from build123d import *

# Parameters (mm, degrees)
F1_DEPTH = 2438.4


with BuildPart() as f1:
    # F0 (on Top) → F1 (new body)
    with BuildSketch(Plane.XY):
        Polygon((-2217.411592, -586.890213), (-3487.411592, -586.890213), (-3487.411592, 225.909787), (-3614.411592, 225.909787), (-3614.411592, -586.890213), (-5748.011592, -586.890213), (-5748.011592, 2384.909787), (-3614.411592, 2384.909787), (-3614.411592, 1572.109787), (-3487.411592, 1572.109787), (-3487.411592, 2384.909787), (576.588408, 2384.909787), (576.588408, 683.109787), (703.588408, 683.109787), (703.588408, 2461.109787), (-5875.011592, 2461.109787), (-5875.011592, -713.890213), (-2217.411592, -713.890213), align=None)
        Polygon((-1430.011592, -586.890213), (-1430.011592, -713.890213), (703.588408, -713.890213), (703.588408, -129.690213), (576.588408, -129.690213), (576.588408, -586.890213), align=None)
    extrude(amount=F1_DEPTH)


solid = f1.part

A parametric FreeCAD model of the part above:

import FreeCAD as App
import Part
import Sketcher
from FreeCAD import Vector
Q = App.Units.Quantity

doc = App.newDocument("Part")
params = doc.addObject("Spreadsheet::Sheet", "Params")
for row, (alias, value) in enumerate([
    ("sketch1_width", "50 in"),
    ("sketch1_width2", "5 in"),
    ("sketch1_width3", "84 in"),
    ("sketch1_width4", "160 in"),
    ("sketch1_width5", "259 in"),
    ("pad1_length", "96 in"),
], start=1):
    params.set(f"A{row}", alias)
    params.set(f"B{row}", "=" + value)
    params.setAlias(f"B{row}", alias)

body = doc.addObject("PartDesign::Body", "Body")
body.AllowCompound = True

# Sketch on XY plane
sketch1 = body.newObject("Sketcher::SketchObject", "Sketch")
sketch1.AttachmentSupport = (doc.getObject("XY_Plane"), [""])
sketch1.MapMode = "FlatFace"
sketch1.addGeometry(Part.LineSegment(Vector(-2217, -587, 0), Vector(-3487, -587, 0)), False)
sketch1.addGeometry(Part.LineSegment(Vector(-3487, -587, 0), Vector(-3487, 226, 0)), False)
sketch1.addGeometry(Part.LineSegment(Vector(-3487, 226, 0), Vector(-3614, 226, 0)), False)
sketch1.addGeometry(Part.LineSegment(Vector(-3614, 226, 0), Vector(-3614, -587, 0)), False)
sketch1.addGeometry(Part.LineSegment(Vector(-3614, -587, 0), Vector(-5748, -587, 0)), False)
sketch1.addGeometry(Part.LineSegment(Vector(-5748, -587, 0), Vector(-5748, 2385, 0)), False)
sketch1.addGeometry(Part.LineSegment(Vector(-5748, 2385, 0), Vector(-3614, 2385, 0)), False)
sketch1.addGeometry(Part.LineSegment(Vector(-3614, 2385, 0), Vector(-3614, 1572, 0)), False)
sketch1.addGeometry(Part.LineSegment(Vector(-3614, 1572, 0), Vector(-3487, 1572, 0)), False)
sketch1.addGeometry(Part.LineSegment(Vector(-3487, 1572, 0), Vector(-3487, 2385, 0)), False)
sketch1.addGeometry(Part.LineSegment(Vector(-3487, 2385, 0), Vector(577, 2385, 0)), False)
sketch1.addGeometry(Part.LineSegment(Vector(577, 2385, 0), Vector(577, 683, 0)), False)
sketch1.addGeometry(Part.LineSegment(Vector(577, 683, 0), Vector(704, 683, 0)), False)
sketch1.addGeometry(Part.LineSegment(Vector(704, 683, 0), Vector(704, 2461, 0)), False)
sketch1.addGeometry(Part.LineSegment(Vector(704, 2461, 0), Vector(-5875, 2461, 0)), False)
sketch1.addGeometry(Part.LineSegment(Vector(-5875, 2461, 0), Vector(-5875, -714, 0)), False)
sketch1.addGeometry(Part.LineSegment(Vector(-5875, -714, 0), Vector(-2217, -714, 0)), False)
sketch1.addGeometry(Part.LineSegment(Vector(-2217, -714, 0), Vector(-2217, -587, 0)), False)
sketch1.addGeometry(Part.LineSegment(Vector(-1430, -587, 0), Vector(-1430, -714, 0)), False)
sketch1.addGeometry(Part.LineSegment(Vector(-1430, -714, 0), Vector(704, -714, 0)), False)
sketch1.addGeometry(Part.LineSegment(Vector(704, -714, 0), Vector(704, -130, 0)), False)
sketch1.addGeometry(Part.LineSegment(Vector(704, -130, 0), Vector(577, -130, 0)), False)
sketch1.addGeometry(Part.LineSegment(Vector(577, -130, 0), Vector(577, -587, 0)), False)
sketch1.addGeometry(Part.LineSegment(Vector(577, -587, 0), Vector(-1430, -587, 0)), False)
sketch1.addConstraint(Sketcher.Constraint("Coincident", 0, 2, 1, 1))
sketch1.addConstraint(Sketcher.Constraint("Coincident", 1, 2, 2, 1))
sketch1.addConstraint(Sketcher.Constraint("Coincident", 2, 2, 3, 1))
sketch1.addConstraint(Sketcher.Constraint("Coincident", 3, 2, 4, 1))
sketch1.addConstraint(Sketcher.Constraint("Coincident", 4, 2, 5, 1))
sketch1.addConstraint(Sketcher.Constraint("Coincident", 5, 2, 6, 1))
sketch1.addConstraint(Sketcher.Constraint("Coincident", 6, 2, 7, 1))
sketch1.addConstraint(Sketcher.Constraint("Coincident", 7, 2, 8, 1))
sketch1.addConstraint(Sketcher.Constraint("Coincident", 8, 2, 9, 1))
sketch1.addConstraint(Sketcher.Constraint("Coincident", 9, 2, 10, 1))
sketch1.addConstraint(Sketcher.Constraint("Coincident", 10, 2, 11, 1))
sketch1.addConstraint(Sketcher.Constraint("Coincident", 11, 2, 12, 1))
sketch1.addConstraint(Sketcher.Constraint("Coincident", 12, 2, 13, 1))
sketch1.addConstraint(Sketcher.Constraint("Coincident", 13, 2, 14, 1))
sketch1.addConstraint(Sketcher.Constraint("Coincident", 14, 2, 15, 1))
sketch1.addConstraint(Sketcher.Constraint("Coincident", 15, 2, 16, 1))
sketch1.addConstraint(Sketcher.Constraint("Coincident", 16, 2, 17, 1))
sketch1.addConstraint(Sketcher.Constraint("Coincident", 17, 2, 0, 1))
sketch1.addConstraint(Sketcher.Constraint("Coincident", 18, 2, 19, 1))
sketch1.addConstraint(Sketcher.Constraint("Coincident", 19, 2, 20, 1))
sketch1.addConstraint(Sketcher.Constraint("Coincident", 20, 2, 21, 1))
sketch1.addConstraint(Sketcher.Constraint("Coincident", 21, 2, 22, 1))
sketch1.addConstraint(Sketcher.Constraint("Coincident", 22, 2, 23, 1))
sketch1.addConstraint(Sketcher.Constraint("Coincident", 23, 2, 18, 1))
sketch1.addConstraint(Sketcher.Constraint("Horizontal", 0))
sketch1.addConstraint(Sketcher.Constraint("Vertical", 1))
sketch1.addConstraint(Sketcher.Constraint("Horizontal", 2))
sketch1.addConstraint(Sketcher.Constraint("Vertical", 3))
sketch1.addConstraint(Sketcher.Constraint("Horizontal", 4))
sketch1.addConstraint(Sketcher.Constraint("Vertical", 5))
sketch1.addConstraint(Sketcher.Constraint("Horizontal", 6))
sketch1.addConstraint(Sketcher.Constraint("Vertical", 7))
sketch1.addConstraint(Sketcher.Constraint("Horizontal", 8))
sketch1.addConstraint(Sketcher.Constraint("Vertical", 9))
sketch1.addConstraint(Sketcher.Constraint("Horizontal", 10))
sketch1.addConstraint(Sketcher.Constraint("Vertical", 11))
sketch1.addConstraint(Sketcher.Constraint("Horizontal", 12))
sketch1.addConstraint(Sketcher.Constraint("Vertical", 13))
sketch1.addConstraint(Sketcher.Constraint("Horizontal", 14))
sketch1.addConstraint(Sketcher.Constraint("Vertical", 15))
sketch1.addConstraint(Sketcher.Constraint("Horizontal", 16))
sketch1.addConstraint(Sketcher.Constraint("Vertical", 17))
sketch1.addConstraint(Sketcher.Constraint("Vertical", 18))
sketch1.addConstraint(Sketcher.Constraint("Horizontal", 19))
sketch1.addConstraint(Sketcher.Constraint("Vertical", 20))
sketch1.addConstraint(Sketcher.Constraint("Horizontal", 21))
sketch1.addConstraint(Sketcher.Constraint("Vertical", 22))
sketch1.addConstraint(Sketcher.Constraint("Horizontal", 23))
sketch1.addConstraint(Sketcher.Constraint("Horizontal", 0, 2, 3, 2))
sketch1.addConstraint(Sketcher.Constraint("Horizontal", 6, 2, 9, 2))
sketch1.addConstraint(Sketcher.Constraint("Horizontal", 16, 2, 18, 2))
sketch1.addConstraint(Sketcher.Constraint("Horizontal", 17, 2, 22, 2))
sketch1.addConstraint(Sketcher.Constraint("Vertical", 3, 2, 6, 2))
sketch1.addConstraint(Sketcher.Constraint("Vertical", 1, 2, 8, 2))
sketch1.addConstraint(Sketcher.Constraint("Vertical", 13, 2, 19, 2))
sketch1.addConstraint(Sketcher.Constraint("Vertical", 11, 2, 21, 2))
sketch1.addConstraint(Sketcher.Constraint("Equal", 8, 12))
sketch1.addConstraint(Sketcher.Constraint("Equal", 6, 19))
sketch1.addConstraint(Sketcher.Constraint("Equal", 3, 7))
sketch1.addConstraint(Sketcher.Constraint("Equal", 21, 17))
sketch1.addConstraint(Sketcher.Constraint("DistanceX", 0, 2, 0, 1, Q("50 in")))
sketch1.addConstraint(Sketcher.Constraint("DistanceX", 2, 2, 2, 1, Q("5 in")))
sketch1.addConstraint(Sketcher.Constraint("DistanceX", 4, 2, 4, 1, Q("84 in")))
sketch1.addConstraint(Sketcher.Constraint("DistanceX", 10, 1, 10, 2, Q("160 in")))
sketch1.addConstraint(Sketcher.Constraint("DistanceX", 14, 2, 14, 1, Q("259 in")))
sketch1.addConstraint(Sketcher.Constraint("DistanceY", 1, 1, 1, 2, Q("32 in")))
sketch1.addConstraint(Sketcher.Constraint("DistanceY", 5, 1, 5, 2, Q("117 in")))
sketch1.addConstraint(Sketcher.Constraint("DistanceY", 11, 2, 11, 1, Q("67 in")))
sketch1.addConstraint(Sketcher.Constraint("DistanceY", 13, 1, 13, 2, Q("70 in")))
sketch1.addConstraint(Sketcher.Constraint("DistanceY", 20, 1, 20, 2, Q("23 in")))
sketch1.addConstraint(Sketcher.Constraint("DistanceX", 0, 2, -1, 1, 3487.411592))
sketch1.addConstraint(Sketcher.Constraint("DistanceY", 0, 2, -1, 1, 586.890213))
sketch1.setExpression("Constraints[60]", "Params.sketch1_width")
sketch1.setExpression("Constraints[61]", "Params.sketch1_width2")
sketch1.setExpression("Constraints[62]", "Params.sketch1_width3")
sketch1.setExpression("Constraints[63]", "Params.sketch1_width4")
sketch1.setExpression("Constraints[64]", "Params.sketch1_width5")
pad1 = body.newObject("PartDesign::Pad", "Pad")
pad1.Profile = sketch1
pad1.setExpression("Length", "Params.pad1_length")

doc.recompute()
